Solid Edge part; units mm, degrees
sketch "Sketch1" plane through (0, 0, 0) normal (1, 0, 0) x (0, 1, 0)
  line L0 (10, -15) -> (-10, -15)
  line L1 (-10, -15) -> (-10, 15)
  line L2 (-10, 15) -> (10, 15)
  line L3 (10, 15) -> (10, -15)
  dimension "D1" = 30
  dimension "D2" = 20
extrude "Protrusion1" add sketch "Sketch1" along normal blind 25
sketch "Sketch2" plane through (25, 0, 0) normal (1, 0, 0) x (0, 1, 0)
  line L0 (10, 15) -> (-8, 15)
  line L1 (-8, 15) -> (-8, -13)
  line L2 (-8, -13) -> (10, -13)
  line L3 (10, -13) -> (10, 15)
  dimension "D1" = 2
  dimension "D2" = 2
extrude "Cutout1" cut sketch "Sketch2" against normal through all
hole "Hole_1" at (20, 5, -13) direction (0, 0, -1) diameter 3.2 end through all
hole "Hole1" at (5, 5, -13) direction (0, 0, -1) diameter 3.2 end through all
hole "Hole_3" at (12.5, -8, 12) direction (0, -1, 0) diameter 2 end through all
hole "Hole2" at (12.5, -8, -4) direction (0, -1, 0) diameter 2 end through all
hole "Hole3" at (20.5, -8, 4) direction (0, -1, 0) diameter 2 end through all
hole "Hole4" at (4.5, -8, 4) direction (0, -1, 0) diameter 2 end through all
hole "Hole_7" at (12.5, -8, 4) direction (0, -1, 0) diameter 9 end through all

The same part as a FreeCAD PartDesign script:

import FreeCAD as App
import Part
import Sketcher
from FreeCAD import Vector

doc = App.newDocument("Part")
body = doc.addObject("PartDesign::Body", "Body")

sketch1 = body.newObject("Sketcher::SketchObject", "Sketch")
sketch1.AttachmentSupport = (doc.getObject("YZ_Plane"), [""])
sketch1.MapMode = "FlatFace"
sketch1.addGeometry(Part.LineSegment(Vector(-10, -15, 0), Vector(10, -15, 0)), False)
sketch1.addGeometry(Part.LineSegment(Vector(10, -15, 0), Vector(10, 15, 0)), False)
sketch1.addGeometry(Part.LineSegment(Vector(10, 15, 0), Vector(-10, 15, 0)), False)
sketch1.addGeometry(Part.LineSegment(Vector(-10, 15, 0), Vector(-10, -15, 0)), False)
sketch1.addConstraint(Sketcher.Constraint("Coincident", 0, 2, 1, 1))
sketch1.addConstraint(Sketcher.Constraint("Coincident", 1, 2, 2, 1))
sketch1.addConstraint(Sketcher.Constraint("Coincident", 2, 2, 3, 1))
sketch1.addConstraint(Sketcher.Constraint("Coincident", 3, 2, 0, 1))
sketch1.addConstraint(Sketcher.Constraint("Horizontal", 0))
sketch1.addConstraint(Sketcher.Constraint("Vertical", 1))
sketch1.addConstraint(Sketcher.Constraint("Horizontal", 2))
sketch1.addConstraint(Sketcher.Constraint("Vertical", 3))
sketch1.addConstraint(Sketcher.Constraint("Symmetric", 0, 2, 2, 2, -1, 1))
sketch1.addConstraint(Sketcher.Constraint("DistanceX", -1, 1, 0, 2, 10.0))
sketch1.addConstraint(Sketcher.Constraint("DistanceY", 1, 1, 1, 2, 30.0))
pad1 = body.newObject("PartDesign::Pad", "Pad")
pad1.Profile = sketch1
pad1.Length = 25

sketch2 = body.newObject("Sketcher::SketchObject", "Sketch001")
sketch2.AttachmentSupport = (doc.getObject("YZ_Plane"), [""])
sketch2.MapMode = "FlatFace"
sketch2.AttachmentOffset = App.Placement(Vector(0, 0, 25), App.Rotation())
sketch2.addGeometry(Part.LineSegment(Vector(10, -13, 0), Vector(10, 15, 0)), False)
sketch2.addGeometry(Part.LineSegment(Vector(10, 15, 0), Vector(-8, 15, 0)), False)
sketch2.addGeometry(Part.LineSegment(Vector(-8, 15, 0), Vector(-8, -13, 0)), False)
sketch2.addGeometry(Part.LineSegment(Vector(-8, -13, 0), Vector(10, -13, 0)), False)
sketch2.addConstraint(Sketcher.Constraint("Coincident", 0, 2, 1, 1))
sketch2.addConstraint(Sketcher.Constraint("Coincident", 1, 2, 2, 1))
sketch2.addConstraint(Sketcher.Constraint("Coincident", 2, 2, 3, 1))
sketch2.addConstraint(Sketcher.Constraint("Coincident", 3, 2, 0, 1))
sketch2.addConstraint(Sketcher.Constraint("Vertical", 0))
sketch2.addConstraint(Sketcher.Constraint("Horizontal", 1))
sketch2.addConstraint(Sketcher.Constraint("Vertical", 2))
sketch2.addConstraint(Sketcher.Constraint("Horizontal", 3))
sketch2.addConstraint(Sketcher.Constraint("DistanceX", 1, 2, 1, 1, 18.0))
sketch2.addConstraint(Sketcher.Constraint("DistanceY", 0, 1, 0, 2, 28.0))
sketch2.addConstraint(Sketcher.Constraint("DistanceX", -1, 1, 0, 2, 10.0))
sketch2.addConstraint(Sketcher.Constraint("DistanceY", -1, 1, 0, 2, 15.0))
pocket1 = body.newObject("PartDesign::Pocket", "Pocket")
pocket1.Profile = sketch2
pocket1.Type = "ThroughAll"

sketch3 = body.newObject("Sketcher::SketchObject", "Sketch002")
sketch3.AttachmentSupport = (doc.getObject("XY_Plane"), [""])
sketch3.MapMode = "FlatFace"
sketch3.AttachmentOffset = App.Placement(Vector(0, 0, -13), App.Rotation())
sketch3.addGeometry(Part.Circle(Vector(20, 5, 0), Vector(0, 0, 1), 1.6), False)
sketch3.addConstraint(Sketcher.Constraint("Diameter", 0, 3.2))
sketch3.addConstraint(Sketcher.Constraint("DistanceX", -1, 1, 0, 3, 20.0))
sketch3.addConstraint(Sketcher.Constraint("DistanceY", -1, 1, 0, 3, 5.0))
doc.recompute()
hole = body.newObject("PartDesign::Hole", "Hole")
hole.Profile = sketch3
hole.ThreadType = "None"
hole.Diameter = 3.2
hole.DepthType = "ThroughAll"

sketch4 = body.newObject("Sketcher::SketchObject", "Sketch003")
sketch4.AttachmentSupport = (doc.getObject("XY_Plane"), [""])
sketch4.MapMode = "FlatFace"
sketch4.AttachmentOffset = App.Placement(Vector(0, 0, -13), App.Rotation())
sketch4.addGeometry(Part.Circle(Vector(5, 5, 0), Vector(0, 0, 1), 1.6), False)
sketch4.addConstraint(Sketcher.Constraint("Diameter", 0, 3.2))
sketch4.addConstraint(Sketcher.Constraint("DistanceX", -1, 1, 0, 3, 5.0))
sketch4.addConstraint(Sketcher.Constraint("DistanceY", -1, 1, 0, 3, 5.0))
doc.recompute()
hole2 = body.newObject("PartDesign::Hole", "Hole001")
hole2.Profile = sketch4
hole2.ThreadType = "None"
hole2.Diameter = 3.2
hole2.DepthType = "ThroughAll"

sketch5 = body.newObject("Sketcher::SketchObject", "Sketch004")
sketch5.AttachmentSupport = (doc.getObject("XZ_Plane"), [""])
sketch5.MapMode = "FlatFace"
sketch5.AttachmentOffset = App.Placement(Vector(0, 0, 8), App.Rotation())
sketch5.addGeometry(Part.Circle(Vector(12.5, 12, 0), Vector(0, 0, 1), 1), False)
sketch5.addConstraint(Sketcher.Constraint("Diameter", 0, 2.0))
sketch5.addConstraint(Sketcher.Constraint("DistanceY", -1, 1, 0, 3, 12.0))
sketch5.addConstraint(Sketcher.Constraint("DistanceX", -1, 1, 0, 3, 12.5))
doc.recompute()
hole3 = body.newObject("PartDesign::Hole", "Hole002")
hole3.Profile = sketch5
hole3.ThreadType = "None"
hole3.Diameter = 2
hole3.DepthType = "ThroughAll"
hole3.Reversed = True

sketch6 = body.newObject("Sketcher::SketchObject", "Sketch005")
sketch6.AttachmentSupport = (doc.getObject("XZ_Plane"), [""])
sketch6.MapMode = "FlatFace"
sketch6.AttachmentOffset = App.Placement(Vector(0, 0, 8), App.Rotation())
sketch6.addGeometry(Part.Circle(Vector(12.5, -4, 0), Vector(0, 0, 1), 1), False)
sketch6.addConstraint(Sketcher.Constraint("Diameter", 0, 2.0))
sketch6.addConstraint(Sketcher.Constraint("DistanceY", 0, 3, -1, 1, 4.0))
sketch6.addConstraint(Sketcher.Constraint("DistanceX", -1, 1, 0, 3, 12.5))
doc.recompute()
hole4 = body.newObject("PartDesign::Hole", "Hole003")
hole4.Profile = sketch6
hole4.ThreadType = "None"
hole4.Diameter = 2
hole4.DepthType = "ThroughAll"
hole4.Reversed = True

sketch7 = body.newObject("Sketcher::SketchObject", "Sketch006")
sketch7.AttachmentSupport = (doc.getObject("XZ_Plane"), [""])
sketch7.MapMode = "FlatFace"
sketch7.AttachmentOffset = App.Placement(Vector(0, 0, 8), App.Rotation())
sketch7.addGeometry(Part.Circle(Vector(20.5, 4, 0), Vector(0, 0, 1), 1), False)
sketch7.addConstraint(Sketcher.Constraint("Diameter", 0, 2.0))
sketch7.addConstraint(Sketcher.Constraint("DistanceY", -1, 1, 0, 3, 4.0))
sketch7.addConstraint(Sketcher.Constraint("DistanceX", -1, 1, 0, 3, 20.5))
doc.recompute()
hole5 = body.newObject("PartDesign::Hole", "Hole004")
hole5.Profile = sketch7
hole5.ThreadType = "None"
hole5.Diameter = 2
hole5.DepthType = "ThroughAll"
hole5.Reversed = True

sketch8 = body.newObject("Sketcher::SketchObject", "Sketch007")
sketch8.AttachmentSupport = (doc.getObject("XZ_Plane"), [""])
sketch8.MapMode = "FlatFace"
sketch8.AttachmentOffset = App.Placement(Vector(0, 0, 8), App.Rotation())
sketch8.addGeometry(Part.Circle(Vector(4.5, 4, 0), Vector(0, 0, 1), 1), False)
sketch8.addConstraint(Sketcher.Constraint("Diameter", 0, 2.0))
sketch8.addConstraint(Sketcher.Constraint("DistanceY", -1, 1, 0, 3, 4.0))
sketch8.addConstraint(Sketcher.Constraint("DistanceX", -1, 1, 0, 3, 4.5))
doc.recompute()
hole6 = body.newObject("PartDesign::Hole", "Hole005")
hole6.Profile = sketch8
hole6.ThreadType = "None"
hole6.Diameter = 2
hole6.DepthType = "ThroughAll"
hole6.Reversed = True

sketch9 = body.newObject("Sketcher::SketchObject", "Sketch008")
sketch9.AttachmentSupport = (doc.getObject("XZ_Plane"), [""])
sketch9.MapMode = "FlatFace"
sketch9.AttachmentOffset = App.Placement(Vector(0, 0, 8), App.Rotation())
sketch9.addGeometry(Part.Circle(Vector(12.5, 4, 0), Vector(0, 0, 1), 4.5), False)
sketch9.addConstraint(Sketcher.Constraint("Diameter", 0, 9.0))
sketch9.addConstraint(Sketcher.Constraint("DistanceY", -1, 1, 0, 3, 4.0))
sketch9.addConstraint(Sketcher.Constraint("DistanceX", -1, 1, 0, 3, 12.5))
doc.recompute()
hole7 = body.newObject("PartDesign::Hole", "Hole006")
hole7.Profile = sketch9
hole7.ThreadType = "None"
hole7.Diameter = 9
hole7.DepthType = "ThroughAll"
hole7.Reversed = True

doc.recompute()
